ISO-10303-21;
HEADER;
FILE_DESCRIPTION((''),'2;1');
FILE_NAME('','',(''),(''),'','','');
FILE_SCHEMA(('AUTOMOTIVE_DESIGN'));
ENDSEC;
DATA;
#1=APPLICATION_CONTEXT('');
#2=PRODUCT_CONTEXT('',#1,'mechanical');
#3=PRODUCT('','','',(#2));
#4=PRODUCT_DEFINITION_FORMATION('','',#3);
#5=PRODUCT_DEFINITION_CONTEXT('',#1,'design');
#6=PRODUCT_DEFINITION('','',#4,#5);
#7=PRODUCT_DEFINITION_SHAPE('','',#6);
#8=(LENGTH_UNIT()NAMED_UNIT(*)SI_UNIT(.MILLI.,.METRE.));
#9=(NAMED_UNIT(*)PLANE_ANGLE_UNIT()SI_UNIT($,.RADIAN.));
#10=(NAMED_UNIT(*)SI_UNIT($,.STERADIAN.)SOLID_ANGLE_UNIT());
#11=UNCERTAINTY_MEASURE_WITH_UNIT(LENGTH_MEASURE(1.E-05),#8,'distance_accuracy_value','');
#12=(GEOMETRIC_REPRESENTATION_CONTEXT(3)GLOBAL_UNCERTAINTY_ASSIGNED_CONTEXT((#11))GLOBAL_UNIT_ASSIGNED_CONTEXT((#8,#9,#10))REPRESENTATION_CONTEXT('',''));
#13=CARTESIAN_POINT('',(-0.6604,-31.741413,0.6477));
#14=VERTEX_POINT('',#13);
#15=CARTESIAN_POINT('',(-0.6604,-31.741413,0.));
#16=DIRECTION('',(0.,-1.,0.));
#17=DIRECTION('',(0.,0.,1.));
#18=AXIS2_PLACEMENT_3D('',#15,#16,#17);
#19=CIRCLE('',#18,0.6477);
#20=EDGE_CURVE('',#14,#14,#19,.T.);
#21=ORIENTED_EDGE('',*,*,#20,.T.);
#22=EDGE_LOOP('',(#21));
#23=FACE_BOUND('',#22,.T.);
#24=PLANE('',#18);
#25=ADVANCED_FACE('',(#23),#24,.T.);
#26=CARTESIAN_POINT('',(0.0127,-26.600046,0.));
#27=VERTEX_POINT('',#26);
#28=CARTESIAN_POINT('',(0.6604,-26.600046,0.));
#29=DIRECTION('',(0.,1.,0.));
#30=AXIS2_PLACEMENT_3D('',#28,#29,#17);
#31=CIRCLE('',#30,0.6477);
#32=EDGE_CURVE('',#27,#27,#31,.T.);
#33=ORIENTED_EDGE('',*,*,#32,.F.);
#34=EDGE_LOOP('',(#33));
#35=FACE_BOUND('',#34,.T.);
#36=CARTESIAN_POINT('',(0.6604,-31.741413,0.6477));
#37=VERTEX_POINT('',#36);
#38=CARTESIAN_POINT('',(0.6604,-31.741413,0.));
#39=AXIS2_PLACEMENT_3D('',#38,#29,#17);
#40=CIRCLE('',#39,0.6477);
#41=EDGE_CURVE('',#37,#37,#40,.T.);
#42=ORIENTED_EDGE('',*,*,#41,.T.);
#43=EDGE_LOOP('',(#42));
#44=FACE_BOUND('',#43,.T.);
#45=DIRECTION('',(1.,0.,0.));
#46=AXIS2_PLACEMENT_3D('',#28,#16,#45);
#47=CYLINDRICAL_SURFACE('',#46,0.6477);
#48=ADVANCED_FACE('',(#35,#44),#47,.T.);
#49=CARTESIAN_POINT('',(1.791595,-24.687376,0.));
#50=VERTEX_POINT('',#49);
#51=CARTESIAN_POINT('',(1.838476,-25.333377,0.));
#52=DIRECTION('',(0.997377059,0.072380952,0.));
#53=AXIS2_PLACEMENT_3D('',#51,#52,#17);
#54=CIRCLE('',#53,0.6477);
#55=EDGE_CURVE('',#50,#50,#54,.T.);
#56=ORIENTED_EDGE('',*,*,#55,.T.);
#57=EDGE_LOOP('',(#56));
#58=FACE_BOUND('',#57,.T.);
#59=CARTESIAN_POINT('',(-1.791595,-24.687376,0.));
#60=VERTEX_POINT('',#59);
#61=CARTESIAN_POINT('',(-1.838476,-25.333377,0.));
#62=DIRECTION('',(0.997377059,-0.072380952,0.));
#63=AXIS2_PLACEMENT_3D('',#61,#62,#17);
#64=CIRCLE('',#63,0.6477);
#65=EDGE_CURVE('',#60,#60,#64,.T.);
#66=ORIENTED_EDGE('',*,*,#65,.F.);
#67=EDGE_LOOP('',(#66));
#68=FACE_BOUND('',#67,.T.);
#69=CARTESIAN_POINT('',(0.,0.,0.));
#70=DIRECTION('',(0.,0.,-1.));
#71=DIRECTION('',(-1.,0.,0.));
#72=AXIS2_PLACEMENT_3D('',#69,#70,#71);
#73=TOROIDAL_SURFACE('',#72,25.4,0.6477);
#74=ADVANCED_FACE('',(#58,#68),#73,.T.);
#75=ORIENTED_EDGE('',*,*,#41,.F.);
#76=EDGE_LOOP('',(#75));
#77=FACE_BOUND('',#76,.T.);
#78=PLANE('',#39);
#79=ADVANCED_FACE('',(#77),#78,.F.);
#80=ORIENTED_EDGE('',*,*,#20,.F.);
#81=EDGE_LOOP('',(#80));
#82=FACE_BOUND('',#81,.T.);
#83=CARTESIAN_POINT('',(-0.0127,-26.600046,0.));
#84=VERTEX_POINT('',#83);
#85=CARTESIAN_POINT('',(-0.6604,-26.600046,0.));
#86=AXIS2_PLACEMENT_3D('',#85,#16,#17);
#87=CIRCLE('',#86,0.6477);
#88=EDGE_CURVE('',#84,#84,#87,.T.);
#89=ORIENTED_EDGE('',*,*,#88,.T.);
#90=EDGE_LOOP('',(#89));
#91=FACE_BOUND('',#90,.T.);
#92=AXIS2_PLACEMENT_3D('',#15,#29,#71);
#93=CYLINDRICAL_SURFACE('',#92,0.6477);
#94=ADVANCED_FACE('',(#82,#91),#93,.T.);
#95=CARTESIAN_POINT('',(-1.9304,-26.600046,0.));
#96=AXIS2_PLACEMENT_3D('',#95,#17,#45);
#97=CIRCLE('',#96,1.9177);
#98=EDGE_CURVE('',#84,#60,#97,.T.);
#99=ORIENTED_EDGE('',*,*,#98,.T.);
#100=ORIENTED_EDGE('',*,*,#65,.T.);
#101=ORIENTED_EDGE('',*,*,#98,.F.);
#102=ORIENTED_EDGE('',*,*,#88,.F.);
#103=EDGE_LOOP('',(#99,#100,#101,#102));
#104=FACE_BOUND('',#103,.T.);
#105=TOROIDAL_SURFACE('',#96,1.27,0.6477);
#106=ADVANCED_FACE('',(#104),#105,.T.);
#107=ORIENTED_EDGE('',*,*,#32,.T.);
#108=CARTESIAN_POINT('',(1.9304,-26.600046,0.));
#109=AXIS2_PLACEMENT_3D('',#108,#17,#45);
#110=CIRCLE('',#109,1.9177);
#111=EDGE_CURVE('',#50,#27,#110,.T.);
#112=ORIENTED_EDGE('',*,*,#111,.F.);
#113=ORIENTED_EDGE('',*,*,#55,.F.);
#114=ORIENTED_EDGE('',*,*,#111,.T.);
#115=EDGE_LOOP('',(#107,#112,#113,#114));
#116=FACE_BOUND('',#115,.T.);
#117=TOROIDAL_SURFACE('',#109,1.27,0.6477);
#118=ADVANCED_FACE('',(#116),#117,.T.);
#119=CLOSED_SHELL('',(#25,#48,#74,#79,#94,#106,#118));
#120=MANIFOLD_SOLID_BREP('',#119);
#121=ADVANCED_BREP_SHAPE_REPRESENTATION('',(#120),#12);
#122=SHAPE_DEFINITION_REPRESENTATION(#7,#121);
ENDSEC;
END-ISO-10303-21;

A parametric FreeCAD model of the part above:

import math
import FreeCAD as App
import Part
import Sketcher

V = App.Vector
Q = App.Units.Quantity

doc = App.newDocument("Part")
params = doc.addObject("Spreadsheet::Sheet", "Params")
for row, (alias, value) in enumerate([
    ("sketch1_diameter", "0.051 in"),
    ("sketch2_radius", "1 in"),
    ("sketch2_radius2", "0.05 in"),
], start=1):
    params.set(f"A{row}", alias)
    params.set(f"B{row}", "=" + value)
    params.setAlias(f"B{row}", alias)

body = doc.addObject("PartDesign::Body", "Body")

# Sketch on XZ plane
sketch1 = doc.addObject("Sketcher::SketchObject", "Sketch")
body.addObject(sketch1)
sketch1.AttachmentSupport = (doc.XZ_Plane, [""])
sketch1.MapMode = "FlatFace"
sketch1.AttachmentOffset = App.Placement(V(0, 0, 31.741413), App.Rotation())
sketch1.addGeometry(Part.Circle(V(0.7, 0, 0), V(0, 0, 1), 0.6), False)
sketch1.addConstraint([
    Sketcher.Constraint("PointOnObject", 0, 3, -1),
    Sketcher.Constraint("Diameter", 0, Q("0.051 in")),
    Sketcher.Constraint("DistanceX", -1, 1, 0, 3, Q("0.026 in")),
])
sketch1.setExpression("Constraints[1]", "Params.sketch1_diameter")

# Sketch on XY plane
sketch2 = doc.addObject("Sketcher::SketchObject", "Sketch001")
body.addObject(sketch2)
sketch2.AttachmentSupport = (doc.XY_Plane, [""])
sketch2.MapMode = "FlatFace"
sketch2.addGeometry([
    Part.LineSegment(V(-0.7, -31.7, 0), V(-0.7, -26.6, 0)),  # 0
    Part.ArcOfCircle(Part.Circle(V(-1.9, -26.6, 0), V(0, 0, 1), 1.3), math.radians(0), math.radians(86)),  # 1
    Part.ArcOfCircle(Part.Circle(V(0, 0, 0), V(0, 0, 1), 25.4), math.radians(-86), math.radians(266)),  # 2
    Part.ArcOfCircle(Part.Circle(V(1.9, -26.6, 0), V(0, 0, 1), 1.3), math.radians(94), math.radians(180)),  # 3
    Part.LineSegment(V(0.7, -26.6, 0), V(0.7, -31.7, 0)),  # 4
], False)
sketch2.addConstraint([
    Sketcher.Constraint("Tangent", 0, 2, 1, 1),
    Sketcher.Constraint("Tangent", 1, 2, 2, 2),
    Sketcher.Constraint("Tangent", 2, 1, 3, 1),
    Sketcher.Constraint("Tangent", 3, 2, 4, 1),
    Sketcher.Constraint("Vertical", 0),
    Sketcher.Constraint("Vertical", 4),
    Sketcher.Constraint("Coincident", 2, 3, -1, 1),
    Sketcher.Constraint("Equal", 1, 3),
    Sketcher.Constraint("Symmetric", 0, 1, 4, 2, -2),
    Sketcher.Constraint("Radius", 2, Q("1 in")),
    Sketcher.Constraint("Radius", 1, Q("0.05 in")),
    Sketcher.Constraint("DistanceX", 1, 3, -1, 1, Q("0.076 in")),
    Sketcher.Constraint("DistanceY", 0, 1, 0, 2, 5.141367),
])
sketch2.setExpression("Constraints[9]", "Params.sketch2_radius")
sketch2.setExpression("Constraints[10]", "Params.sketch2_radius2")
doc.recompute()

additivepipe = doc.addObject("PartDesign::AdditivePipe", "AdditivePipe")
body.addObject(additivepipe)
additivepipe.Profile = sketch1
additivepipe.Spine = (sketch2, ["Edge1", "Edge2", "Edge3", "Edge4", "Edge5"])

doc.recompute()
